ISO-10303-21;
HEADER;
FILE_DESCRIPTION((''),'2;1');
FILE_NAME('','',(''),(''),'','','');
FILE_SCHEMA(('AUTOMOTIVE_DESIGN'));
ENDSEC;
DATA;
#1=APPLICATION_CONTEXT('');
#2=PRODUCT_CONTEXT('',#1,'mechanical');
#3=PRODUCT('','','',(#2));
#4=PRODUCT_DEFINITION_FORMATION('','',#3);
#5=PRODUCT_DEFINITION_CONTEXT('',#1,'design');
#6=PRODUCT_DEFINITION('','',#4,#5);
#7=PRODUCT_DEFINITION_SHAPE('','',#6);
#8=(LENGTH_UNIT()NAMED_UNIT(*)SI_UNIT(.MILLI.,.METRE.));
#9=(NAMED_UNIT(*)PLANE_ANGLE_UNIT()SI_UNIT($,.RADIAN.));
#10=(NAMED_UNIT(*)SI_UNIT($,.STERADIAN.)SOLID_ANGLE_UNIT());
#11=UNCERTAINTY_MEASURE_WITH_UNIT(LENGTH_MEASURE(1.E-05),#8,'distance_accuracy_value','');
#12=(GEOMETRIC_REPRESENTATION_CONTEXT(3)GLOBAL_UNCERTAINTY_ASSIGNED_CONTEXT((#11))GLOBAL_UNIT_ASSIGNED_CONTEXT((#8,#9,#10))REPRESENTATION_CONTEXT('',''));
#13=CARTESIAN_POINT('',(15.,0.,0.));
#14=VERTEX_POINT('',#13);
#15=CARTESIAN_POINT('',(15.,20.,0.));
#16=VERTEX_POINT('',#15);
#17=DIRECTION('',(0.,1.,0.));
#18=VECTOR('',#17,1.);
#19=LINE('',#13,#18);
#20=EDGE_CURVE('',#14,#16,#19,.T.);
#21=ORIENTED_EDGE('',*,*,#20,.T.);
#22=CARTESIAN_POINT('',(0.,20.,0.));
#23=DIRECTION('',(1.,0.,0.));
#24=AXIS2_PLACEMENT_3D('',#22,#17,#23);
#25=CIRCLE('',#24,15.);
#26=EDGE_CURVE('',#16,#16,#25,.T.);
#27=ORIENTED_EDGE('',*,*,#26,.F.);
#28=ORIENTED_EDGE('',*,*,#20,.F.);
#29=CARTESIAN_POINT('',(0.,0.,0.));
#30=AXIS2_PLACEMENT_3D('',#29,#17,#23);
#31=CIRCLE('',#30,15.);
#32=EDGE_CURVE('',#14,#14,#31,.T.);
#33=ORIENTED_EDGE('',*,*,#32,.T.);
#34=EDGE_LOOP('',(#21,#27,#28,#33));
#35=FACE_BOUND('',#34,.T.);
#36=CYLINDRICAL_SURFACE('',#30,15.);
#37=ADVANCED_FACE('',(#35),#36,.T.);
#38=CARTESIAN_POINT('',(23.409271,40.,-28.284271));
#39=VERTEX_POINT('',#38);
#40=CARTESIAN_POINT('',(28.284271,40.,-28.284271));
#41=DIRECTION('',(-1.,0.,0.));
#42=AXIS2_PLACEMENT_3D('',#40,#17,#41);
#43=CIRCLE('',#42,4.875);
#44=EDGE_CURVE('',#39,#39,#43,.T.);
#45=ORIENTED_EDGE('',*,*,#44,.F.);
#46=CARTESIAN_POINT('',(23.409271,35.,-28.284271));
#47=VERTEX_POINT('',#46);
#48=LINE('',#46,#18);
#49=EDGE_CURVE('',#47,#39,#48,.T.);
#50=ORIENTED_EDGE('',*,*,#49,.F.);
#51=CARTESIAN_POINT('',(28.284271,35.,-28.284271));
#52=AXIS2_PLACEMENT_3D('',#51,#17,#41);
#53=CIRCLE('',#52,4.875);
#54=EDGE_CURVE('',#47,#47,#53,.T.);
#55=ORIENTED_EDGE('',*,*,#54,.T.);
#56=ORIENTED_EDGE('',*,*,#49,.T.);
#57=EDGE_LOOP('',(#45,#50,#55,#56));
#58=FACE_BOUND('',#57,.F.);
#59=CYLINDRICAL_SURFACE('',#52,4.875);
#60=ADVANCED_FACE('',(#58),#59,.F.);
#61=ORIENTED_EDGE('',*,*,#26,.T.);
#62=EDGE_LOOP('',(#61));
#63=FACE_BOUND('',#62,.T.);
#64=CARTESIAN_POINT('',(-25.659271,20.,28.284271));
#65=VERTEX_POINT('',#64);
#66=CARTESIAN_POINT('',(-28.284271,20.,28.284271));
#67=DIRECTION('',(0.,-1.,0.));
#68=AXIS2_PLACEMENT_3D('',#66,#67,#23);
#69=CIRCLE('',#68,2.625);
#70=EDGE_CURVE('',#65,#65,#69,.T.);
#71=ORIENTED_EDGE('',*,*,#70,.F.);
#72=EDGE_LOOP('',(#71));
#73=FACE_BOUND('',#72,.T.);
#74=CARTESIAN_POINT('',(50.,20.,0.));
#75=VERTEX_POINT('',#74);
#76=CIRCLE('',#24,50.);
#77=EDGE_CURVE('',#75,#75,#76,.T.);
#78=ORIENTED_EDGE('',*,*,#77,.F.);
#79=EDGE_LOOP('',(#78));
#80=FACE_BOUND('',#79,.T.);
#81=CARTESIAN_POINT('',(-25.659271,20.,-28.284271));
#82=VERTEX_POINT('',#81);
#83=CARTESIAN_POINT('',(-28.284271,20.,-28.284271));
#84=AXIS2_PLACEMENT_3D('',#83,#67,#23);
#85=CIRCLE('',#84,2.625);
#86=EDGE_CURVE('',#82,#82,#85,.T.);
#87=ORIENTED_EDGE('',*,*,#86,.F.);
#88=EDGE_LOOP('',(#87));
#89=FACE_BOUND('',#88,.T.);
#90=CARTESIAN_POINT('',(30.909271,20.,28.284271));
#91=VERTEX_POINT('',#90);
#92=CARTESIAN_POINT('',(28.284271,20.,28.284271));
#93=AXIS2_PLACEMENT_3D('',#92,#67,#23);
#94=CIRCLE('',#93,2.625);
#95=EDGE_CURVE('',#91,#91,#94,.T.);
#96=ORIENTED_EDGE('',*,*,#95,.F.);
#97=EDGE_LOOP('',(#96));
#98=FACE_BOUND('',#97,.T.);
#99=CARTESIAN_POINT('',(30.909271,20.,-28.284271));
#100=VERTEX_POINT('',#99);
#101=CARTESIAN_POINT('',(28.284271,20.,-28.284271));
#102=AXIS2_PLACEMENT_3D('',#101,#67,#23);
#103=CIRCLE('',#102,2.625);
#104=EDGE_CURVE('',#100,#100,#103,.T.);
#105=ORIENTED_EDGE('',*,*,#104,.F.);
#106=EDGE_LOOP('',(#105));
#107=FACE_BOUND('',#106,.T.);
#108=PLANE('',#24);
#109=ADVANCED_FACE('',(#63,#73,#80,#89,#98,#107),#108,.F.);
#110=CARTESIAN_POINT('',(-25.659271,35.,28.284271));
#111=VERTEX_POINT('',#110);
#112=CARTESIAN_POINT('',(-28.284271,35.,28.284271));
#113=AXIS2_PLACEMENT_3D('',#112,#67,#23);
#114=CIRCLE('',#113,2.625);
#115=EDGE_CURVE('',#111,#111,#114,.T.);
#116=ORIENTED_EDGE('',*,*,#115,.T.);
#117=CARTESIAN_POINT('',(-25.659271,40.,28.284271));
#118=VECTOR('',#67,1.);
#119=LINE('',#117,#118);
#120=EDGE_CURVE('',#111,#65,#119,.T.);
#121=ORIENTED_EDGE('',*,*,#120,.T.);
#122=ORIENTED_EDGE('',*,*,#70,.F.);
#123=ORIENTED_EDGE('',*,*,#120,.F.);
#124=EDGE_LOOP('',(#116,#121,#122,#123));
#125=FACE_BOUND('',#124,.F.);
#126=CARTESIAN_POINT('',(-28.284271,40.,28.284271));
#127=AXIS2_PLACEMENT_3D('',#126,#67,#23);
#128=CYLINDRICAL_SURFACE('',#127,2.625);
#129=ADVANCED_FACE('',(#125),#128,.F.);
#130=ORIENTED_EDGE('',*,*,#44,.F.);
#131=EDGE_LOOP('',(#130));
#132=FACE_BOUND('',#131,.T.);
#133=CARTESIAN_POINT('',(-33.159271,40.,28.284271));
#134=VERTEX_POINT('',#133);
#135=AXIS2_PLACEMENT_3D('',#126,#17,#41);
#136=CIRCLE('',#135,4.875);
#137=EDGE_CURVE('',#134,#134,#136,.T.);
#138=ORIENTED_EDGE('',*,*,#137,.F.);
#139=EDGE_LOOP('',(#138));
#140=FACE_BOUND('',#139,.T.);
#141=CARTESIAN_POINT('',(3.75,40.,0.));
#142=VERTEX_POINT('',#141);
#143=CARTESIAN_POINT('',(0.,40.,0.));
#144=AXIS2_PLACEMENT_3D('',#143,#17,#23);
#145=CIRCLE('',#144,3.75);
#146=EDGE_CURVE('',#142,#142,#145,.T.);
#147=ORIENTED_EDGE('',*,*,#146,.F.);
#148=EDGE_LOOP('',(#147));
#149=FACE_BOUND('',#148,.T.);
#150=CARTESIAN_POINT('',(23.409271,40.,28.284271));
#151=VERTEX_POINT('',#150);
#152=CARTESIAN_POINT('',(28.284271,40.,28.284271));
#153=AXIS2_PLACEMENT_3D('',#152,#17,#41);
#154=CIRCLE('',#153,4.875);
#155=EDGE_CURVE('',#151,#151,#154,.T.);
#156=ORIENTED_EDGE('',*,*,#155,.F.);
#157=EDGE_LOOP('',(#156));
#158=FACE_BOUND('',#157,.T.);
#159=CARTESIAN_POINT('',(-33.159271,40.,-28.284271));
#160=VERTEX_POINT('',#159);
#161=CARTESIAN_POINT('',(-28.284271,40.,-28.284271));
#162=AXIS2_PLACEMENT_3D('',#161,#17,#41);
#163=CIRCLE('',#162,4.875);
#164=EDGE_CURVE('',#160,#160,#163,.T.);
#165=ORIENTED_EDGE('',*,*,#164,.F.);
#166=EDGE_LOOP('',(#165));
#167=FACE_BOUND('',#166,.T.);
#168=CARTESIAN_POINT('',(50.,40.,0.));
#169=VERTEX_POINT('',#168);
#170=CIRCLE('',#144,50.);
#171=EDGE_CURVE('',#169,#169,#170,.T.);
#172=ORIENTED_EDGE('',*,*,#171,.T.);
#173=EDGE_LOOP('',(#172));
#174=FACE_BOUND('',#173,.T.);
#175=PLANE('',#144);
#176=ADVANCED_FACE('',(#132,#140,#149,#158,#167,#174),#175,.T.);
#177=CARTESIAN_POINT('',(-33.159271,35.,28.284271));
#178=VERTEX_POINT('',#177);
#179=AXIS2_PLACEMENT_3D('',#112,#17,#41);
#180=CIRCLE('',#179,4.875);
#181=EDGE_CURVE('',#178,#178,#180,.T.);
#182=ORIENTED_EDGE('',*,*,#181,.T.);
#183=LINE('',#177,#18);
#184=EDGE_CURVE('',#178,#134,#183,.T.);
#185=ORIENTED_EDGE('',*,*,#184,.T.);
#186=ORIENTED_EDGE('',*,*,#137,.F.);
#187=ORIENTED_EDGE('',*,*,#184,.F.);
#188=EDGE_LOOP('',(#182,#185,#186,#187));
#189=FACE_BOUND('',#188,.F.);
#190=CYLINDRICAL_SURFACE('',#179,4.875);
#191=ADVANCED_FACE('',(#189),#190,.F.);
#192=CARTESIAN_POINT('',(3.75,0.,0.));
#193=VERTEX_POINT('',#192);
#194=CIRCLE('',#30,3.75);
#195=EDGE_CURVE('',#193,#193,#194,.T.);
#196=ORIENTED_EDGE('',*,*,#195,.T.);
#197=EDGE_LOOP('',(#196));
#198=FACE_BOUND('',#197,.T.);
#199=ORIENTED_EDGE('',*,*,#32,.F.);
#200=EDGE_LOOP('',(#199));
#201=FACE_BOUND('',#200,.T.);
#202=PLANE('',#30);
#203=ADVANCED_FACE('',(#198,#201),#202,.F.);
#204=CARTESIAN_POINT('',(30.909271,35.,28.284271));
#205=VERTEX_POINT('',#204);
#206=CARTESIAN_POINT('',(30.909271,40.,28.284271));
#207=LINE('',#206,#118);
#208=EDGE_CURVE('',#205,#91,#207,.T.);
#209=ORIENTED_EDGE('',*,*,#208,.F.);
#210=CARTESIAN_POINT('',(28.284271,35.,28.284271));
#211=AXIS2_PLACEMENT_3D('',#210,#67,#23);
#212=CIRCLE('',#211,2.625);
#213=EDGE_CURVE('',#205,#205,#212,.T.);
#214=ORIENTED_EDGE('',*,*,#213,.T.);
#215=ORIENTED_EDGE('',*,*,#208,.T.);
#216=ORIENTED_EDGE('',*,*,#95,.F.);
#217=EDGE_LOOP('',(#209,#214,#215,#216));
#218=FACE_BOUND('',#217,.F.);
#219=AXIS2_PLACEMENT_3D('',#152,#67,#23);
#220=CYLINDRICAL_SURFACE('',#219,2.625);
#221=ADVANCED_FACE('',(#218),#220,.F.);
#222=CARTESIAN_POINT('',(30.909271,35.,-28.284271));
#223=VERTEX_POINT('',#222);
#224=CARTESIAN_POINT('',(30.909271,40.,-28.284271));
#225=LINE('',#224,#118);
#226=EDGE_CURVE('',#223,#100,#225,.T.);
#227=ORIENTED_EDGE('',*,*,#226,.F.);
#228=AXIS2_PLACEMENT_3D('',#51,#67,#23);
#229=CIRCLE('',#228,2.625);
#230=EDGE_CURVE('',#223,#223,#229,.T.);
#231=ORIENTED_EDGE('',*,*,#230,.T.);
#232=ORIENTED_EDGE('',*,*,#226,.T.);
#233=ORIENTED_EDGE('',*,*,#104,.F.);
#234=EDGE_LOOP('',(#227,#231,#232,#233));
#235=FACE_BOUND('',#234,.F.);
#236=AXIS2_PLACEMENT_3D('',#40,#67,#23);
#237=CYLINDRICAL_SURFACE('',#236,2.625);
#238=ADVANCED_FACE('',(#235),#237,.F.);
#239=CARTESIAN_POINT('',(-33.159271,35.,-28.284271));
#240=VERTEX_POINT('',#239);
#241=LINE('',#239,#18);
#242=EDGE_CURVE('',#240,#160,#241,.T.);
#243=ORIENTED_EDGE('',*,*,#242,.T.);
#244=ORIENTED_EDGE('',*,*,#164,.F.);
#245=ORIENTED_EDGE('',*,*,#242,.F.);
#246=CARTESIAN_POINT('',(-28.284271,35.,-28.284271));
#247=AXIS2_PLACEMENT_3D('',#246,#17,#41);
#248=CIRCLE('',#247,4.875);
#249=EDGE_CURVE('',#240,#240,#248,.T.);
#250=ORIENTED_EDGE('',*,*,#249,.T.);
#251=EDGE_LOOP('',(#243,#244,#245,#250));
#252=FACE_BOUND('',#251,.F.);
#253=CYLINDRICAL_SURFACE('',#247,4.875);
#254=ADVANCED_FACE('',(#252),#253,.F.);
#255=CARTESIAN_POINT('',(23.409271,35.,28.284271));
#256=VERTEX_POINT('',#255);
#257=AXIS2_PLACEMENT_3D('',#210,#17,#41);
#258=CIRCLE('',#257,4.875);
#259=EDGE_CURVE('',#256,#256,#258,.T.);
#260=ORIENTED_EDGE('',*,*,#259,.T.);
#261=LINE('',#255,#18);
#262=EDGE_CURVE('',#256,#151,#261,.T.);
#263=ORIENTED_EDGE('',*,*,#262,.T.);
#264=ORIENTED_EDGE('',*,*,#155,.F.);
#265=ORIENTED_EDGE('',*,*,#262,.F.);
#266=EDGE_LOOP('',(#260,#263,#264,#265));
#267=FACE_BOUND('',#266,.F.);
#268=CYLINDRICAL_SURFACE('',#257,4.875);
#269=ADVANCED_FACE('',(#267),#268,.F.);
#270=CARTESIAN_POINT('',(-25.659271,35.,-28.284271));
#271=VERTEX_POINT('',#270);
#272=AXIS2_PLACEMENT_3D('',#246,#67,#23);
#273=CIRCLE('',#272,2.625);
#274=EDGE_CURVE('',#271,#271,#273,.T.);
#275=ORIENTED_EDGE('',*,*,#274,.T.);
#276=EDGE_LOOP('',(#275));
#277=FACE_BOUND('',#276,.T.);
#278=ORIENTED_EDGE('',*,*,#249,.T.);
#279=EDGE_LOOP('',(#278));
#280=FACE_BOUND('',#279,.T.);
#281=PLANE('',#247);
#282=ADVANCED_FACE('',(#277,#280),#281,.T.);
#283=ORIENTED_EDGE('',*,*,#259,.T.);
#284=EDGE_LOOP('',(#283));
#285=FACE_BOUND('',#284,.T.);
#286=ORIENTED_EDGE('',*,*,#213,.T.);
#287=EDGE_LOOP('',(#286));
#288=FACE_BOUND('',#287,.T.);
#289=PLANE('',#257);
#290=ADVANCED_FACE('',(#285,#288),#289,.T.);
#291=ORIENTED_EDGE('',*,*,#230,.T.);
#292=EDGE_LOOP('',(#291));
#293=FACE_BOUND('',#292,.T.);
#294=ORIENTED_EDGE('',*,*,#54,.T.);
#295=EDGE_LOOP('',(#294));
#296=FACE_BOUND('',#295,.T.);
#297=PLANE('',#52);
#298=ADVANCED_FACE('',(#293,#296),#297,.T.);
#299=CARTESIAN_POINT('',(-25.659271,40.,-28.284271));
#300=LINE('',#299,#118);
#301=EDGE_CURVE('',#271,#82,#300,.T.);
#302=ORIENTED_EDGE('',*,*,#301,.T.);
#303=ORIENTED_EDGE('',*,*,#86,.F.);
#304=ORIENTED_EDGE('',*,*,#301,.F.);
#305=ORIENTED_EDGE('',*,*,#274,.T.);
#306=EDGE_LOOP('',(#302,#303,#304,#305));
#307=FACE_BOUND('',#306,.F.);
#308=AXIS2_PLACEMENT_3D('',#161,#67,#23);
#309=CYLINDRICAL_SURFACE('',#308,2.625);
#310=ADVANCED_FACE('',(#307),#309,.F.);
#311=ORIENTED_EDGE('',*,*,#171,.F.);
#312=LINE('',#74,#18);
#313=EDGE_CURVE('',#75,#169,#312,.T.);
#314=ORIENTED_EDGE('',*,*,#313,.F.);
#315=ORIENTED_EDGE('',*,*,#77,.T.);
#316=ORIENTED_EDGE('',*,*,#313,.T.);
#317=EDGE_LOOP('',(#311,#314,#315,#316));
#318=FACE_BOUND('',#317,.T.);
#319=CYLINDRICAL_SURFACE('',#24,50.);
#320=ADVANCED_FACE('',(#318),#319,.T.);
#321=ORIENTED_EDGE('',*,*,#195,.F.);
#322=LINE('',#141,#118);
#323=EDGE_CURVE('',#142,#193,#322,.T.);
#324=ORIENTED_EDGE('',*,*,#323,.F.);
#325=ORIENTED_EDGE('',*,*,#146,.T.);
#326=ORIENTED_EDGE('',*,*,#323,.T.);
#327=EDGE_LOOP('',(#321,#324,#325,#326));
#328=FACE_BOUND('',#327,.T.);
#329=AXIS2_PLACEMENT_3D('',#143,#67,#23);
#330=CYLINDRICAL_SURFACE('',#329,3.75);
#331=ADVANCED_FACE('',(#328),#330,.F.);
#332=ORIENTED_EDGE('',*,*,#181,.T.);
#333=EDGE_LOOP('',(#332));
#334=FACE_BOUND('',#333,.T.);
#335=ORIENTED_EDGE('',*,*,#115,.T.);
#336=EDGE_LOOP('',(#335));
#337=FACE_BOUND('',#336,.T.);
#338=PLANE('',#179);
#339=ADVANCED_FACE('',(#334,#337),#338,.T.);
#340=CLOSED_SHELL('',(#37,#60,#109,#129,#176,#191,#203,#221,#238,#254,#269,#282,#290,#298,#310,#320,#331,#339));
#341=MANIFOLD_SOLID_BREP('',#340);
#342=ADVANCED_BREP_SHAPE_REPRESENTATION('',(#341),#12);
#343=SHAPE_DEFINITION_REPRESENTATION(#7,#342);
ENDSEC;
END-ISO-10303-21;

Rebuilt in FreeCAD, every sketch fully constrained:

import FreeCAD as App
import Part
import Sketcher

doc = App.newDocument("Part")
params = doc.addObject("Spreadsheet::Sheet", "Params")
for row, (alias, value) in enumerate([
    ("sketch1_width", "35 mm"),
    ("sketch1_height", "20 mm"),
    ("sketch1_width2", "46.25 mm"),
    ("revolution_angle", "360 deg"),
    ("sketch2_diameter", "5.25 mm"),
    ("hole_diameter", "5.25 mm"),
    ("hole_cbore_diameter", "9.75 mm"),
    ("hole_cbore_depth", "5 mm"),
], start=1):
    params.set(f"A{row}", alias)
    params.set(f"B{row}", "=" + value)
    params.setAlias(f"B{row}", alias)

body = doc.addObject("PartDesign::Body", "Body")

sketch1 = body.newObject("Sketcher::SketchObject", "Sketch")
sketch1.AttachmentSupport = (doc.getObject("XY_Plane"), [""])
sketch1.MapMode = "FlatFace"
sketch1.addGeometry([
    Part.LineSegment(App.Vector(50, 20, 0), App.Vector(50, 40, 0)),
    Part.LineSegment(App.Vector(50, 40, 0), App.Vector(4, 40, 0)),
    Part.LineSegment(App.Vector(4, 40, 0), App.Vector(4, 0, 0)),
    Part.LineSegment(App.Vector(4, 0, 0), App.Vector(15, 0, 0)),
    Part.LineSegment(App.Vector(15, 0, 0), App.Vector(15, 20, 0)),
    Part.LineSegment(App.Vector(15, 20, 0), App.Vector(50, 20, 0)),
], False)
sketch1.addConstraint([
    Sketcher.Constraint("Coincident", 0, 2, 1, 1),
    Sketcher.Constraint("Coincident", 1, 2, 2, 1),
    Sketcher.Constraint("Coincident", 2, 2, 3, 1),
    Sketcher.Constraint("Coincident", 3, 2, 4, 1),
    Sketcher.Constraint("Coincident", 4, 2, 5, 1),
    Sketcher.Constraint("Coincident", 5, 2, 0, 1),
    Sketcher.Constraint("Vertical", 0),
    Sketcher.Constraint("Horizontal", 1),
    Sketcher.Constraint("Vertical", 2),
    Sketcher.Constraint("Horizontal", 3),
    Sketcher.Constraint("Vertical", 4),
    Sketcher.Constraint("Horizontal", 5),
    Sketcher.Constraint("PointOnObject", 2, 2, -1),
    Sketcher.Constraint("Equal", 0, 4),
    Sketcher.Constraint("DistanceX", 5, 1, 5, 2, 35.0),
    Sketcher.Constraint("DistanceY", 0, 1, 0, 2, 20.0),
    Sketcher.Constraint("DistanceX", -1, 1, 0, 2, 50.0),
    Sketcher.Constraint("DistanceX", 1, 2, 1, 1, 46.25),
])
sketch1.setExpression("Constraints[14]", "Params.sketch1_width")
sketch1.setExpression("Constraints[15]", "Params.sketch1_height")
sketch1.setExpression("Constraints[17]", "Params.sketch1_width2")
revolution = body.newObject("PartDesign::Revolution", "Revolution")
revolution.Profile = sketch1
revolution.ReferenceAxis = (sketch1, ["V_Axis"])
revolution.setExpression("Angle", "Params.revolution_angle")

sketch2 = body.newObject("Sketcher::SketchObject", "Sketch001")
sketch2.AttachmentSupport = (doc.getObject("XZ_Plane"), [""])
sketch2.MapMode = "FlatFace"
sketch2.AttachmentOffset = App.Placement(App.Vector(0, 0, -40), App.Rotation())
sketch2.addGeometry([
    Part.Circle(App.Vector(28.3, 28.3, 0), App.Vector(0, 0, 1), 2.6),
    Part.Circle(App.Vector(-28.3, 28.3, 0), App.Vector(0, 0, 1), 2.6),
    Part.Circle(App.Vector(28.3, -28.3, 0), App.Vector(0, 0, 1), 2.6),
    Part.Circle(App.Vector(-28.3, -28.3, 0), App.Vector(0, 0, 1), 2.6),
], False)
sketch2.addConstraint([
    Sketcher.Constraint("Equal", 0, 1),
    Sketcher.Constraint("Equal", 1, 2),
    Sketcher.Constraint("Equal", 2, 3),
    Sketcher.Constraint("Symmetric", 1, 3, 2, 3, -1, 1),
    Sketcher.Constraint("Symmetric", 0, 3, 3, 3, -1, 1),
    Sketcher.Constraint("Symmetric", 0, 3, 1, 3, -2),
    Sketcher.Constraint("Diameter", 0, 5.25),
    Sketcher.Constraint("DistanceX", -1, 1, 0, 3, 28.284271),
    Sketcher.Constraint("DistanceY", -1, 1, 0, 3, 28.284271),
])
sketch2.setExpression("Constraints[6]", "Params.sketch2_diameter")
doc.recompute()
hole = body.newObject("PartDesign::Hole", "Hole")
hole.Profile = sketch2
hole.ThreadType = "None"
hole.setExpression("Diameter", "Params.hole_diameter")
hole.DepthType = "ThroughAll"
hole.HoleCutType = "Counterbore"
hole.setExpression("HoleCutDiameter", "Params.hole_cbore_diameter")
hole.setExpression("HoleCutDepth", "Params.hole_cbore_depth")
hole.Reversed = True

doc.recompute()
